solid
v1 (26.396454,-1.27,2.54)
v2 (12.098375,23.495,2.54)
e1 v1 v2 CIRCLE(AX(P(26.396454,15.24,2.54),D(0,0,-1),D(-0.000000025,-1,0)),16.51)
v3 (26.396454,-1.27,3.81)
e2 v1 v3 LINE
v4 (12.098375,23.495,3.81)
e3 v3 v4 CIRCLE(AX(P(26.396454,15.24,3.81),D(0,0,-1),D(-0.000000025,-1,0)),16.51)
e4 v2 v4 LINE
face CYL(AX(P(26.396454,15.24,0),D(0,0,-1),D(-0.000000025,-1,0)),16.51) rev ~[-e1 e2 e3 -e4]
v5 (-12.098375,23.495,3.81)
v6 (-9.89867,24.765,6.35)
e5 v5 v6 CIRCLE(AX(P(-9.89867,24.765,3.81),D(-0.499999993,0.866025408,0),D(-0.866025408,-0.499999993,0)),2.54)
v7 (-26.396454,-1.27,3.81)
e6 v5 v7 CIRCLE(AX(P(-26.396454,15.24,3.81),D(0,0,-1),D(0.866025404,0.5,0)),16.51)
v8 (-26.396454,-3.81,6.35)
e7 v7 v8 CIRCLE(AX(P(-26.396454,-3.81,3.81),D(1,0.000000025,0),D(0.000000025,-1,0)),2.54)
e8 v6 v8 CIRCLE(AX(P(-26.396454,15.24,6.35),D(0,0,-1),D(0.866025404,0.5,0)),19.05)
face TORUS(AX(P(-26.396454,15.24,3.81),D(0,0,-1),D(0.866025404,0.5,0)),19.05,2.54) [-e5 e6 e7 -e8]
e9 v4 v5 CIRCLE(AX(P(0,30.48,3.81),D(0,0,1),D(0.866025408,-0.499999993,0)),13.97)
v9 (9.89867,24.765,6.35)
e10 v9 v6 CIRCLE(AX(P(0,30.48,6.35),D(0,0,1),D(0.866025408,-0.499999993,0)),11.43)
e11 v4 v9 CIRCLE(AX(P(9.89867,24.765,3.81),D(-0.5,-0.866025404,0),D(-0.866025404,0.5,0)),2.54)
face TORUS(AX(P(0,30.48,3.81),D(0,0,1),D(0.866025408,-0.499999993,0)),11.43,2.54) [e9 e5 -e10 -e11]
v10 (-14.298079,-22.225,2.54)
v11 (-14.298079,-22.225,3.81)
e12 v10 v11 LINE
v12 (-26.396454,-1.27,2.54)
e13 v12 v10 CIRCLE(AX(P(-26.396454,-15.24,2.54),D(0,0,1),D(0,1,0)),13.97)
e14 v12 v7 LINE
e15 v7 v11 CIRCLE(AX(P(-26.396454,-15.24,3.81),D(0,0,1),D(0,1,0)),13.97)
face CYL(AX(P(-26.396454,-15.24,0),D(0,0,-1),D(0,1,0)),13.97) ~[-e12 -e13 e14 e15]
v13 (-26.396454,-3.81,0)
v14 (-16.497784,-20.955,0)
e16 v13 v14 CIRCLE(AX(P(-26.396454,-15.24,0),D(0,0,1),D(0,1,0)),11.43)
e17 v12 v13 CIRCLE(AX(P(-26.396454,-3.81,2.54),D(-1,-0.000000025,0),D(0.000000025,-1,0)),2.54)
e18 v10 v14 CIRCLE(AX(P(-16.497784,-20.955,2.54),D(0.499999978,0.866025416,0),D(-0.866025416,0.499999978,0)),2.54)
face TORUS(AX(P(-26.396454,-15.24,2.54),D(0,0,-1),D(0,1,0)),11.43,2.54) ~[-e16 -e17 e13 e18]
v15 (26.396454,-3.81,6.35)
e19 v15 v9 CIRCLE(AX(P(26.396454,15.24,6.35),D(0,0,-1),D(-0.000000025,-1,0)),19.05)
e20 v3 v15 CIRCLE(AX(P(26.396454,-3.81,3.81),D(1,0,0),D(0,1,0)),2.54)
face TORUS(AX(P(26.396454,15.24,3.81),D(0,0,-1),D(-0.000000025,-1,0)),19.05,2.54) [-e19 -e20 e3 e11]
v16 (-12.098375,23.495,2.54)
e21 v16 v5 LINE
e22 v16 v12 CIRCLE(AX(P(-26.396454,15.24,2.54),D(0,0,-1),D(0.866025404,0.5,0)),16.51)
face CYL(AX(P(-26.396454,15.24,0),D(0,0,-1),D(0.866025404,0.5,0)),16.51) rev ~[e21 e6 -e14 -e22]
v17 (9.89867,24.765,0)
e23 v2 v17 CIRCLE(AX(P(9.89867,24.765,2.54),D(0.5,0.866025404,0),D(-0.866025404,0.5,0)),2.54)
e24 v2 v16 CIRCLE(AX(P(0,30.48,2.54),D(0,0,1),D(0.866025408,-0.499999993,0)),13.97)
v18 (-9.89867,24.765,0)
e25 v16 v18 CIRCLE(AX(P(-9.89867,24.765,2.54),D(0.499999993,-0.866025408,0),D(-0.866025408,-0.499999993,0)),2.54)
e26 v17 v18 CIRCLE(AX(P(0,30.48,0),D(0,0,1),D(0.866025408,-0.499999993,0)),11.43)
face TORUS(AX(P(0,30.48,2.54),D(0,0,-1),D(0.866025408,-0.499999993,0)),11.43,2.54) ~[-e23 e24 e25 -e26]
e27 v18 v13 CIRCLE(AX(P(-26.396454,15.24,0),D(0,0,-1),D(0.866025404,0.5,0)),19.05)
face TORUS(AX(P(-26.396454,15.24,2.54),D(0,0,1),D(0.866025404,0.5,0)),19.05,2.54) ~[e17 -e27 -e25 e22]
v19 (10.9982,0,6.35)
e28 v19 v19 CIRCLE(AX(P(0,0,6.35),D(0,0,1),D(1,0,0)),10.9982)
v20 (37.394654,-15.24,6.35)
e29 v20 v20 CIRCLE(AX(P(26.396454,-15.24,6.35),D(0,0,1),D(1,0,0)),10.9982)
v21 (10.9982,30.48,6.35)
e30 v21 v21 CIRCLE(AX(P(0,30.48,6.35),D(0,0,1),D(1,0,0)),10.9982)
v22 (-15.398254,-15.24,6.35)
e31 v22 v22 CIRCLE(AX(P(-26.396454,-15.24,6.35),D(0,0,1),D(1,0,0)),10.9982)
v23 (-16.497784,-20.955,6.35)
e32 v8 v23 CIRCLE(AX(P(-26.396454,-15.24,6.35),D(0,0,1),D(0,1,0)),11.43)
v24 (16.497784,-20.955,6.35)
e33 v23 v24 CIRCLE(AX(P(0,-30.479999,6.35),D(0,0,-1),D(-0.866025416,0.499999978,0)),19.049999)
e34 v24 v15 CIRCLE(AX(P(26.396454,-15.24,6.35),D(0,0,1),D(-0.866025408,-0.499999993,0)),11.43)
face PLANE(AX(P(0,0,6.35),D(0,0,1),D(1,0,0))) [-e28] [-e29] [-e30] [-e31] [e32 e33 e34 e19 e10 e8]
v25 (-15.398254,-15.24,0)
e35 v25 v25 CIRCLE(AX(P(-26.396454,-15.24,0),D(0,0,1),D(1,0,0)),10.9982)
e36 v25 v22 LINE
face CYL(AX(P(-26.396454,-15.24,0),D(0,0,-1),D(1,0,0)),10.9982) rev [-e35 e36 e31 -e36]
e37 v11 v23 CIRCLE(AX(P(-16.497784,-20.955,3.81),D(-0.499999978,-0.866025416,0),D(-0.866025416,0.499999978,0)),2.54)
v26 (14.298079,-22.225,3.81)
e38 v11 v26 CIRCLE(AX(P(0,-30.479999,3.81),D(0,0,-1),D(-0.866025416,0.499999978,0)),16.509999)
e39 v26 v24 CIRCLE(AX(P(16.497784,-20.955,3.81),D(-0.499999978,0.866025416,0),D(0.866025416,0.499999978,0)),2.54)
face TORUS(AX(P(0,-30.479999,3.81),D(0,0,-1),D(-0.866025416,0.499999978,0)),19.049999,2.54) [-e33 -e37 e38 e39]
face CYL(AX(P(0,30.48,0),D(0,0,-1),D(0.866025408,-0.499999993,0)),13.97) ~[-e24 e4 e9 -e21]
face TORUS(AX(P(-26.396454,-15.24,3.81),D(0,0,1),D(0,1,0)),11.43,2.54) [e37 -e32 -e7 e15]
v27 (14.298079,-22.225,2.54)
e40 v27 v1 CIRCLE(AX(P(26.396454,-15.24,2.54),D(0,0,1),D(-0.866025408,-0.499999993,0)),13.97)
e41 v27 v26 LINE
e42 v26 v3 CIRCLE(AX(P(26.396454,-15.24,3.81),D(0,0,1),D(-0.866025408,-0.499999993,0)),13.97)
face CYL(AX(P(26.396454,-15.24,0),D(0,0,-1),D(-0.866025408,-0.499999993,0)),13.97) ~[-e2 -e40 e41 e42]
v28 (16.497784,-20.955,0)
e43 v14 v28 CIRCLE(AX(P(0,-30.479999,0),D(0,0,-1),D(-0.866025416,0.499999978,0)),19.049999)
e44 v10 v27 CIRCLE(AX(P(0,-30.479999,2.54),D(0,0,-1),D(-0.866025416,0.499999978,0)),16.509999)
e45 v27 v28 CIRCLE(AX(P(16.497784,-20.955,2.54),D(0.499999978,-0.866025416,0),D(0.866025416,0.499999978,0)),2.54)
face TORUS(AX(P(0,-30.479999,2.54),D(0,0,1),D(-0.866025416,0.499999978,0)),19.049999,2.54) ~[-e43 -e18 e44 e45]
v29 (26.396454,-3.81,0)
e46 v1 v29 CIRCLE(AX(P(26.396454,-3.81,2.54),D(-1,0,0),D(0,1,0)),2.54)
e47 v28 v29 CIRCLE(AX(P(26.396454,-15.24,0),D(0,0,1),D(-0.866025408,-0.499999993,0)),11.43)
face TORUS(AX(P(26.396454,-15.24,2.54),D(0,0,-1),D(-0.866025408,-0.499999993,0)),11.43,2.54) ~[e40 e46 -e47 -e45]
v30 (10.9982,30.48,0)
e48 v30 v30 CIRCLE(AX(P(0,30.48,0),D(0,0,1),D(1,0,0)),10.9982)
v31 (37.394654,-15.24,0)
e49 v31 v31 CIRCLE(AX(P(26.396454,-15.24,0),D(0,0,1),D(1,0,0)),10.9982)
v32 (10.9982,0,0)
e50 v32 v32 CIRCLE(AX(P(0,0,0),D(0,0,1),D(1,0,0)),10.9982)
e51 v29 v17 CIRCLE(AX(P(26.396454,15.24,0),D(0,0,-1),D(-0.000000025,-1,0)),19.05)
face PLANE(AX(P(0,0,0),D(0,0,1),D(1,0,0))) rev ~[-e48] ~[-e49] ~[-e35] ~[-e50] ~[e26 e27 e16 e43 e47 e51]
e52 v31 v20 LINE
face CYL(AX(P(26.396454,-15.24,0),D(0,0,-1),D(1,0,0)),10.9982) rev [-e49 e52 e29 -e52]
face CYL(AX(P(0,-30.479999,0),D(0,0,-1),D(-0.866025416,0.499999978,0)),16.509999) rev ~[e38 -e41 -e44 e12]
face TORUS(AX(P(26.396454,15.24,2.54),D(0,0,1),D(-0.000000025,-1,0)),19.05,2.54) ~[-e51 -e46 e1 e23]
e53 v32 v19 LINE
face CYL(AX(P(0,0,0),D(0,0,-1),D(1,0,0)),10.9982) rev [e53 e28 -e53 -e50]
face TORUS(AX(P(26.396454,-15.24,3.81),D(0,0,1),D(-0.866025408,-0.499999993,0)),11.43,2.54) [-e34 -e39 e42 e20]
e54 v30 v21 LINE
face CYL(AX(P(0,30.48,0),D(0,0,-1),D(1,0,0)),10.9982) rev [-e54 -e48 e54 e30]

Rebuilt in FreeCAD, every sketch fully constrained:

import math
import FreeCAD as App
import Part
import Sketcher

V = App.Vector
Q = App.Units.Quantity


def edges_at(feature, points):
    """Names of the edges that pass closest to the given points."""
    edges = feature.Shape.Edges
    near = lambda p: min(range(len(edges)), key=lambda i: edges[i].distToShape(Part.Vertex(*p))[0])
    return sorted({f"Edge{near(p) + 1}" for p in points})

doc = App.newDocument("Part")
body = doc.addObject("PartDesign::Body", "Body")

sketch1 = body.newObject("Sketcher::SketchObject", "Sketch")
sketch1.AttachmentSupport = (doc.getObject("XY_Plane"), [""])
sketch1.MapMode = "FlatFace"
sketch1.addGeometry([
    Part.ArcOfCircle(Part.Circle(V(26, 15, 0), V(0, 0, 1), 17), math.radians(150), math.radians(270)),
    Part.ArcOfCircle(Part.Circle(V(0, 30, 0), V(0, 0, 1), 14), math.radians(-30), math.radians(210)),
    Part.ArcOfCircle(Part.Circle(V(-26, 15, 0), V(0, 0, 1), 17), math.radians(-90), math.radians(30)),
    Part.ArcOfCircle(Part.Circle(V(-26, -15, 0), V(0, 0, 1), 14), math.radians(90), math.radians(330)),
    Part.ArcOfCircle(Part.Circle(V(0, -30, 0), V(0, 0, 1), 17), math.radians(30), math.radians(150)),
    Part.ArcOfCircle(Part.Circle(V(26, -15, 0), V(0, 0, 1), 14), math.radians(-150), math.radians(90)),
    Part.Circle(V(-26, -15, 0), V(0, 0, 1), 11),
    Part.Circle(V(26, -15, 0), V(0, 0, 1), 11),
    Part.Circle(V(0, 0, 0), V(0, 0, 1), 11),
    Part.Circle(V(0, 30, 0), V(0, 0, 1), 11),
], False)
sketch1.addConstraint([
    Sketcher.Constraint("Tangent", 0, 1, 1, 1),
    Sketcher.Constraint("Tangent", 1, 2, 2, 2),
    Sketcher.Constraint("Tangent", 2, 1, 3, 1),
    Sketcher.Constraint("Tangent", 3, 2, 4, 2),
    Sketcher.Constraint("Tangent", 4, 1, 5, 1),
    Sketcher.Constraint("Tangent", 5, 2, 0, 2),
    Sketcher.Constraint("Coincident", 8, 3, -1, 1),
    Sketcher.Constraint("Coincident", 6, 3, 3, 3),
    Sketcher.Constraint("Coincident", 7, 3, 5, 3),
    Sketcher.Constraint("Coincident", 9, 3, 1, 3),
    Sketcher.Constraint("Equal", 0, 2),
    Sketcher.Constraint("Equal", 1, 3),
    Sketcher.Constraint("Equal", 2, 4),
    Sketcher.Constraint("Equal", 3, 5),
    Sketcher.Constraint("Equal", 6, 7),
    Sketcher.Constraint("Equal", 7, 8),
    Sketcher.Constraint("Equal", 8, 9),
    Sketcher.Constraint("Symmetric", 0, 3, 3, 3, -1, 1),
    Sketcher.Constraint("Symmetric", 0, 3, 2, 3, -2),
    Sketcher.Constraint("PointOnObject", 4, 3, -2),
    Sketcher.Constraint("Radius", 0, Q("0.65 in")),
    Sketcher.Constraint("Radius", 1, Q("0.55 in")),
    Sketcher.Constraint("Diameter", 6, Q("0.866 in")),
    Sketcher.Constraint("DistanceY", -1, 1, 1, 3, Q("1.2 in")),
])
pad1 = body.newObject("PartDesign::Pad", "Pad")
pad1.Profile = sketch1
pad1.Length = Q("0.25 in")
doc.recompute()

fillet = body.newObject("PartDesign::Fillet", "Fillet")
fillet.Base = (pad1, edges_at(pad1, [(0, -13.97, 6.35), (0, -13.97, 0)]))
fillet.Radius = Q("0.1 in")

doc.recompute()
